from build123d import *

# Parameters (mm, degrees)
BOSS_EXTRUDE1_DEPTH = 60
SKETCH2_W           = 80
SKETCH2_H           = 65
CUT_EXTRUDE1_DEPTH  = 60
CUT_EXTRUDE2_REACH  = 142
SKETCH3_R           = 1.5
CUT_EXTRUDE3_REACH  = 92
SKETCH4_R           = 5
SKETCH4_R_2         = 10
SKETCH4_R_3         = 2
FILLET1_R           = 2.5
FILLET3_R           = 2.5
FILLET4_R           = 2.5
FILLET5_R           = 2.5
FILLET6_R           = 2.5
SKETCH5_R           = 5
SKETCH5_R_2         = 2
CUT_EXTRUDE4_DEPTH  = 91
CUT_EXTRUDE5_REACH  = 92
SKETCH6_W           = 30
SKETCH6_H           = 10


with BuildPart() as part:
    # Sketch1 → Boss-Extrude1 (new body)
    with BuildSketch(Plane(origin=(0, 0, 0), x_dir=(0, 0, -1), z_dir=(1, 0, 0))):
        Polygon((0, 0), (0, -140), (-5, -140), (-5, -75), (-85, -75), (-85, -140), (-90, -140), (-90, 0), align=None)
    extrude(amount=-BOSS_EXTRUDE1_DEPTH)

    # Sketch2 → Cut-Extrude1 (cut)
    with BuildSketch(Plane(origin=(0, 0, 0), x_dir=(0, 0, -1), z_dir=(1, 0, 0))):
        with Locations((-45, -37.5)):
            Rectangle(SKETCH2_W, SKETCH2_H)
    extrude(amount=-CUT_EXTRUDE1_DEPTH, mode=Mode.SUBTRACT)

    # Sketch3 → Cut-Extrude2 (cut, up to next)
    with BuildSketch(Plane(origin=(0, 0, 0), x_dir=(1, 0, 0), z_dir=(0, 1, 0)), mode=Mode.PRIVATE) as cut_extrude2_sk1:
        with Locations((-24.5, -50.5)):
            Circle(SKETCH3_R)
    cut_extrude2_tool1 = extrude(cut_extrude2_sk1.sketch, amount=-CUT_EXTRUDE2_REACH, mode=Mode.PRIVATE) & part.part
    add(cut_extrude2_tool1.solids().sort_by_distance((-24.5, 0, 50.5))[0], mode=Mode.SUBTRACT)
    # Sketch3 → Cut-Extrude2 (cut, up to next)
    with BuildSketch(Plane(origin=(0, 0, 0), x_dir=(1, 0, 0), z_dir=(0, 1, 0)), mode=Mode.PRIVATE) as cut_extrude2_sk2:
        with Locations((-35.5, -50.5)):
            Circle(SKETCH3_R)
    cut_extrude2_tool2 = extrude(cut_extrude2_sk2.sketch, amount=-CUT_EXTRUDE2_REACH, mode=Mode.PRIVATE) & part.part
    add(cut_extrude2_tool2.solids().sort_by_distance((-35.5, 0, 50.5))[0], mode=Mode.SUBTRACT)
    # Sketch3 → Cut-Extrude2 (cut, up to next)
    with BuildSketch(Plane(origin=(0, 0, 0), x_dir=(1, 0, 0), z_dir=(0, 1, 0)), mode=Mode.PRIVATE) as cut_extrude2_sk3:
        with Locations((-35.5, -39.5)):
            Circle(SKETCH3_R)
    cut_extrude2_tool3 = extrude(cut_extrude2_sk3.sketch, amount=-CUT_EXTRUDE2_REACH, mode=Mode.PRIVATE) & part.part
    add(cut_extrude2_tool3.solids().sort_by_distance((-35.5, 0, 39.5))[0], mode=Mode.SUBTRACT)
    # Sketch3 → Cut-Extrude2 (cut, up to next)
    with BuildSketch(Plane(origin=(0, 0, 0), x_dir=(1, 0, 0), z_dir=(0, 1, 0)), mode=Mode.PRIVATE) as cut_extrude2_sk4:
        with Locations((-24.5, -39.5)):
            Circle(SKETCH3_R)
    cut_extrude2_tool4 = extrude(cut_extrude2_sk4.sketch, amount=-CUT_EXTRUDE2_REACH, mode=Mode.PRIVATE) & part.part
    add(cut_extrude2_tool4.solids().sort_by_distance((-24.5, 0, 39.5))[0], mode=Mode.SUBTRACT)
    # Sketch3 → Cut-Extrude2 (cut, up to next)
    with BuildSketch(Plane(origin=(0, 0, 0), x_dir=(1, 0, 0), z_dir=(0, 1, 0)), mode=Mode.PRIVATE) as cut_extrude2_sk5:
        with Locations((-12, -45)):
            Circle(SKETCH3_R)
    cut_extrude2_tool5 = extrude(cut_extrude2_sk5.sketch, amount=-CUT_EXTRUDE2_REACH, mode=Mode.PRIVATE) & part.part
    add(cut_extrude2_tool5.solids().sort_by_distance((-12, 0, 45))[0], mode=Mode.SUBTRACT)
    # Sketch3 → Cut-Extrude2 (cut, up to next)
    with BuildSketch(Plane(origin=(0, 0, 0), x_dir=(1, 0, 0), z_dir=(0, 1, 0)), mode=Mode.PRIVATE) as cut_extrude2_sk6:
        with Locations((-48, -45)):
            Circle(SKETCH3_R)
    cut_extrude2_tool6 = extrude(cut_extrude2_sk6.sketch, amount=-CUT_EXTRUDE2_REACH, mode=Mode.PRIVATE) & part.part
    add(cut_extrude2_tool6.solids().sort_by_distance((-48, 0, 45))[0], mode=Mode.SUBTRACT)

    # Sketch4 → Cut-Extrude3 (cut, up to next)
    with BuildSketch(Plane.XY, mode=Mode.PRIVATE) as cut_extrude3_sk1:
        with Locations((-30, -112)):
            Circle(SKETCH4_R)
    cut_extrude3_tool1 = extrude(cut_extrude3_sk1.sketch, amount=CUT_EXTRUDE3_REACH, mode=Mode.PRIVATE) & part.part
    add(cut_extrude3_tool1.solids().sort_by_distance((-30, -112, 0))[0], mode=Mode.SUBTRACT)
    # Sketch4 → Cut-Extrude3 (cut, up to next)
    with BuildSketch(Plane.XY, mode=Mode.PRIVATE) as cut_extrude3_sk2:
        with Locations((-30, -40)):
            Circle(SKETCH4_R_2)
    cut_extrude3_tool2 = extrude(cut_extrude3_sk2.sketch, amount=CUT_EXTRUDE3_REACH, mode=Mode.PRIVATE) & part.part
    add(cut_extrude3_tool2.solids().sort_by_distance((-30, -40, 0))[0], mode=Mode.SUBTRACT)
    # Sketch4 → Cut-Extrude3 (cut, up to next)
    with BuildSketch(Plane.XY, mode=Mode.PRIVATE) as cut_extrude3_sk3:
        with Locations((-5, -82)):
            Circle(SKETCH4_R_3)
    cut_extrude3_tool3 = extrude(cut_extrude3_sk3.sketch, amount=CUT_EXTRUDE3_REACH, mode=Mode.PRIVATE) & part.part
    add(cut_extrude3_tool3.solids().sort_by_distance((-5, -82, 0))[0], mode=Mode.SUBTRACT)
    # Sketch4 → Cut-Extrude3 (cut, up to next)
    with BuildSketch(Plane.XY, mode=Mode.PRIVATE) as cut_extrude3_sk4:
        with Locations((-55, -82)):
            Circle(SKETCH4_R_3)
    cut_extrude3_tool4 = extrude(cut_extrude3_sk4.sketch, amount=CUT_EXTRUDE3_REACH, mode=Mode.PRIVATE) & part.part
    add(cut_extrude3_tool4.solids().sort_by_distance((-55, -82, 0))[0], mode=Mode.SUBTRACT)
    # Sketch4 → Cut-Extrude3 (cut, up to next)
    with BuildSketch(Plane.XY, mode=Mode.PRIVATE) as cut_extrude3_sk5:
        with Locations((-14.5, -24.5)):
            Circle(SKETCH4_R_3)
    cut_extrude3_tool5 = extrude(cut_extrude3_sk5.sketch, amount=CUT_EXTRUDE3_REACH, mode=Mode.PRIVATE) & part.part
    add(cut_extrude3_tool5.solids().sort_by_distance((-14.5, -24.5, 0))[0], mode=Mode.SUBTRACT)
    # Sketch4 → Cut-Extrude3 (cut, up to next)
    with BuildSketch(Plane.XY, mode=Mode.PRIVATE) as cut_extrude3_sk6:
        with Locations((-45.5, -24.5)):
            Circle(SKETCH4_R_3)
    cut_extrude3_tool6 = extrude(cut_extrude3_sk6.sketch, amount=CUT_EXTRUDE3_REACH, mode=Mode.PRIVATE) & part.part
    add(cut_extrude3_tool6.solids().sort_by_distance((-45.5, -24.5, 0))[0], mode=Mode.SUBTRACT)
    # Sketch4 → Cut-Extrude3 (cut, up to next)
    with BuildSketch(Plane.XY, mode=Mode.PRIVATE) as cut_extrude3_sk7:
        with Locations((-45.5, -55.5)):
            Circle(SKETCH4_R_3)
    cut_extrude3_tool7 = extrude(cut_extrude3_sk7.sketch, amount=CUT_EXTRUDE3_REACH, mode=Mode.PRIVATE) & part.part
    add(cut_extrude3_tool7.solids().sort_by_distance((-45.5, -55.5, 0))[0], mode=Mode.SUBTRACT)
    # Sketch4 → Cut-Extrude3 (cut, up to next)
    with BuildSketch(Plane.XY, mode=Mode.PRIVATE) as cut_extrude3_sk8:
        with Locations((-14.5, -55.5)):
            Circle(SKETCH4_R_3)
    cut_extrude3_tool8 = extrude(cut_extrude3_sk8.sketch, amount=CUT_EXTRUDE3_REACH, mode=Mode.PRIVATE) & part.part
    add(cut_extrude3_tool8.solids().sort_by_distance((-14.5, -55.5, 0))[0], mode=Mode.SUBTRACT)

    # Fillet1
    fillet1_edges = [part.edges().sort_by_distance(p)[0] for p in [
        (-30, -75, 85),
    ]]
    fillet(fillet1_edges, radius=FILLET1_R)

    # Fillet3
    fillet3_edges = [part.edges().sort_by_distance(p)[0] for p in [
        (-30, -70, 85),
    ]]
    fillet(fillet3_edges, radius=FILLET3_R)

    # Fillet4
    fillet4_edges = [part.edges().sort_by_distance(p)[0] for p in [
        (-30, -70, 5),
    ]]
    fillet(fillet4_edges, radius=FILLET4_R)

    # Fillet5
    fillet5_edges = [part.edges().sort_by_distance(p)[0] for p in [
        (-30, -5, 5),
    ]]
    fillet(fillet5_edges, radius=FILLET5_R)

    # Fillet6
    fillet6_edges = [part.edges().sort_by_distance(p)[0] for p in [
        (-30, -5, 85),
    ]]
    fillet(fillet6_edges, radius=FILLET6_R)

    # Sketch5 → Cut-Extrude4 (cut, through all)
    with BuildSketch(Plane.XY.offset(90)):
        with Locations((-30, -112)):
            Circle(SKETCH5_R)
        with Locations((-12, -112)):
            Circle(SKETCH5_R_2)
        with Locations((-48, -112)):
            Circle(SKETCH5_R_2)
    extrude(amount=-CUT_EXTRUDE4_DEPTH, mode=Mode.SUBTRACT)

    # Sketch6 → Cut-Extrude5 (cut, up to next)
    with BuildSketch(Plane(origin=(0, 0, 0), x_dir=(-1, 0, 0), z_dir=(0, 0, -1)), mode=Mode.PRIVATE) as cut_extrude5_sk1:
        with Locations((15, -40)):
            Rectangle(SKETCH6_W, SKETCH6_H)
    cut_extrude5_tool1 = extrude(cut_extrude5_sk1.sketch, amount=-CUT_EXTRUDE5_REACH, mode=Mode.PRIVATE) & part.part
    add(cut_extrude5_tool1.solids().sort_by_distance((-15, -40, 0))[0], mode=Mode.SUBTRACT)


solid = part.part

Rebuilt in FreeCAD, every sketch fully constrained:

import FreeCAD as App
import Part
import Sketcher
Q = App.Units.Quantity


def edges_at(feature, points):
    """Names of the edges that pass closest to the given points."""
    edges = feature.Shape.Edges
    near = lambda p: min(range(len(edges)), key=lambda i: edges[i].distToShape(Part.Vertex(*p))[0])
    return sorted({f"Edge{near(p) + 1}" for p in points})


def add_polygon(sketch, points):
    """Adds a closed chain of lines whose ends are joined by coincident constraints."""
    first, n = sketch.GeometryCount, len(points)
    for a, b in zip(points, points[1:] + points[:1]):
        sketch.addGeometry(Part.LineSegment(App.Vector(*a, 0), App.Vector(*b, 0)), False)
    for i in range(n):
        sketch.addConstraint(Sketcher.Constraint("Coincident", first + i, 2, first + (i + 1) % n, 1))

doc = App.newDocument("Part")
body = doc.addObject("PartDesign::Body", "Body")

# Sketch on YZ plane
sketch1 = body.newObject("Sketcher::SketchObject", "Sketch")
sketch1.AttachmentSupport = (doc.getObject("YZ_Plane"), [""])
sketch1.MapMode = "FlatFace"
add_polygon(sketch1, [(-140, 0), (0, 0), (0, 90), (-140, 90), (-140, 85), (-75, 85), (-75, 5), (-140, 5)])  # lines 0-7
sketch1.addConstraint(Sketcher.Constraint("Horizontal", 0))
sketch1.addConstraint(Sketcher.Constraint("Vertical", 1))
sketch1.addConstraint(Sketcher.Constraint("Horizontal", 2))
sketch1.addConstraint(Sketcher.Constraint("Vertical", 3))
sketch1.addConstraint(Sketcher.Constraint("Horizontal", 4))
sketch1.addConstraint(Sketcher.Constraint("Vertical", 5))
sketch1.addConstraint(Sketcher.Constraint("Horizontal", 6))
sketch1.addConstraint(Sketcher.Constraint("Vertical", 7))
sketch1.addConstraint(Sketcher.Constraint("Coincident", 0, 2, -1, 1))
sketch1.addConstraint(Sketcher.Constraint("Vertical", 3, 2, 6, 2))
sketch1.addConstraint(Sketcher.Constraint("Equal", 3, 7))
sketch1.addConstraint(Sketcher.Constraint("DistanceX", 0, 1, 0, 2, Q("140 mm")))
sketch1.addConstraint(Sketcher.Constraint("DistanceX", 4, 1, 4, 2, Q("65 mm")))
sketch1.addConstraint(Sketcher.Constraint("DistanceY", 1, 1, 1, 2, Q("90 mm")))
sketch1.addConstraint(Sketcher.Constraint("DistanceY", 3, 2, 3, 1, Q("5 mm")))
pad1 = body.newObject("PartDesign::Pad", "Pad")
pad1.Profile = sketch1
pad1.Length = 60
pad1.Reversed = True

# Sketch on YZ plane
sketch2 = body.newObject("Sketcher::SketchObject", "Sketch001")
sketch2.AttachmentSupport = (doc.getObject("YZ_Plane"), [""])
sketch2.MapMode = "FlatFace"
add_polygon(sketch2, [(-5, 85), (-70, 85), (-70, 5), (-5, 5)])  # lines 0-3
sketch2.addConstraint(Sketcher.Constraint("Horizontal", 0))
sketch2.addConstraint(Sketcher.Constraint("Vertical", 1))
sketch2.addConstraint(Sketcher.Constraint("Horizontal", 2))
sketch2.addConstraint(Sketcher.Constraint("Vertical", 3))
sketch2.addConstraint(Sketcher.Constraint("DistanceX", 0, 2, 0, 1, Q("65 mm")))
sketch2.addConstraint(Sketcher.Constraint("DistanceY", 1, 2, 1, 1, Q("80 mm")))
sketch2.addConstraint(Sketcher.Constraint("DistanceX", 0, 2, -1, 1, Q("70 mm")))
sketch2.addConstraint(Sketcher.Constraint("DistanceY", -1, 1, 0, 2, Q("85 mm")))
pocket1 = body.newObject("PartDesign::Pocket", "Pocket")
pocket1.Profile = sketch2
pocket1.Length = 60

# Sketch on XZ plane
sketch3 = body.newObject("Sketcher::SketchObject", "Sketch002")
sketch3.AttachmentSupport = (doc.getObject("XZ_Plane"), [""])
sketch3.MapMode = "FlatFace"
sketch3.addGeometry(Part.Circle(App.Vector(-24.5, 50.5, 0), App.Vector(0, 0, 1), 1.5), False)
sketch3.addConstraint(Sketcher.Constraint("Diameter", 0, Q("3 mm")))
sketch3.addConstraint(Sketcher.Constraint("DistanceX", 0, 3, -1, 1, Q("24.5 mm")))
sketch3.addConstraint(Sketcher.Constraint("DistanceY", -1, 1, 0, 3, Q("50.5 mm")))
pocket2 = body.newObject("PartDesign::Pocket", "Pocket001")
pocket2.Profile = sketch3
pocket2.Type = "UpToFirst"
pocket2.Reversed = True

# Sketch on XZ plane
sketch4 = body.newObject("Sketcher::SketchObject", "Sketch003")
sketch4.AttachmentSupport = (doc.getObject("XZ_Plane"), [""])
sketch4.MapMode = "FlatFace"
sketch4.addGeometry(Part.Circle(App.Vector(-35.5, 50.5, 0), App.Vector(0, 0, 1), 1.5), False)
sketch4.addConstraint(Sketcher.Constraint("Diameter", 0, Q("3 mm")))
sketch4.addConstraint(Sketcher.Constraint("DistanceX", 0, 3, -1, 1, Q("35.5 mm")))
sketch4.addConstraint(Sketcher.Constraint("DistanceY", -1, 1, 0, 3, Q("50.5 mm")))
pocket3 = body.newObject("PartDesign::Pocket", "Pocket002")
pocket3.Profile = sketch4
pocket3.Type = "UpToFirst"
pocket3.Reversed = True

# Sketch on XZ plane
sketch5 = body.newObject("Sketcher::SketchObject", "Sketch004")
sketch5.AttachmentSupport = (doc.getObject("XZ_Plane"), [""])
sketch5.MapMode = "FlatFace"
sketch5.addGeometry(Part.Circle(App.Vector(-35.5, 39.5, 0), App.Vector(0, 0, 1), 1.5), False)
sketch5.addConstraint(Sketcher.Constraint("Diameter", 0, Q("3 mm")))
sketch5.addConstraint(Sketcher.Constraint("DistanceX", 0, 3, -1, 1, Q("35.5 mm")))
sketch5.addConstraint(Sketcher.Constraint("DistanceY", -1, 1, 0, 3, Q("39.5 mm")))
pocket4 = body.newObject("PartDesign::Pocket", "Pocket003")
pocket4.Profile = sketch5
pocket4.Type = "UpToFirst"
pocket4.Reversed = True

# Sketch on XZ plane
sketch6 = body.newObject("Sketcher::SketchObject", "Sketch005")
sketch6.AttachmentSupport = (doc.getObject("XZ_Plane"), [""])
sketch6.MapMode = "FlatFace"
sketch6.addGeometry(Part.Circle(App.Vector(-24.5, 39.5, 0), App.Vector(0, 0, 1), 1.5), False)
sketch6.addConstraint(Sketcher.Constraint("Diameter", 0, Q("3 mm")))
sketch6.addConstraint(Sketcher.Constraint("DistanceX", 0, 3, -1, 1, Q("24.5 mm")))
sketch6.addConstraint(Sketcher.Constraint("DistanceY", -1, 1, 0, 3, Q("39.5 mm")))
pocket5 = body.newObject("PartDesign::Pocket", "Pocket004")
pocket5.Profile = sketch6
pocket5.Type = "UpToFirst"
pocket5.Reversed = True

# Sketch on XZ plane
sketch7 = body.newObject("Sketcher::SketchObject", "Sketch006")
sketch7.AttachmentSupport = (doc.getObject("XZ_Plane"), [""])
sketch7.MapMode = "FlatFace"
sketch7.addGeometry(Part.Circle(App.Vector(-12, 45, 0), App.Vector(0, 0, 1), 1.5), False)
sketch7.addConstraint(Sketcher.Constraint("Diameter", 0, Q("3 mm")))
sketch7.addConstraint(Sketcher.Constraint("DistanceX", 0, 3, -1, 1, Q("12 mm")))
sketch7.addConstraint(Sketcher.Constraint("DistanceY", -1, 1, 0, 3, Q("45 mm")))
pocket6 = body.newObject("PartDesign::Pocket", "Pocket005")
pocket6.Profile = sketch7
pocket6.Type = "UpToFirst"
pocket6.Reversed = True

# Sketch on XZ plane
sketch8 = body.newObject("Sketcher::SketchObject", "Sketch007")
sketch8.AttachmentSupport = (doc.getObject("XZ_Plane"), [""])
sketch8.MapMode = "FlatFace"
sketch8.addGeometry(Part.Circle(App.Vector(-48, 45, 0), App.Vector(0, 0, 1), 1.5), False)
sketch8.addConstraint(Sketcher.Constraint("Diameter", 0, Q("3 mm")))
sketch8.addConstraint(Sketcher.Constraint("DistanceX", 0, 3, -1, 1, Q("48 mm")))
sketch8.addConstraint(Sketcher.Constraint("DistanceY", -1, 1, 0, 3, Q("45 mm")))
pocket7 = body.newObject("PartDesign::Pocket", "Pocket006")
pocket7.Profile = sketch8
pocket7.Type = "UpToFirst"
pocket7.Reversed = True

# Sketch on XY plane
sketch9 = body.newObject("Sketcher::SketchObject", "Sketch008")
sketch9.AttachmentSupport = (doc.getObject("XY_Plane"), [""])
sketch9.MapMode = "FlatFace"
sketch9.addGeometry(Part.Circle(App.Vector(-30, -112, 0), App.Vector(0, 0, 1), 5), False)
sketch9.addConstraint(Sketcher.Constraint("Diameter", 0, Q("10 mm")))
sketch9.addConstraint(Sketcher.Constraint("DistanceX", 0, 3, -1, 1, Q("30 mm")))
sketch9.addConstraint(Sketcher.Constraint("DistanceY", 0, 3, -1, 1, Q("112 mm")))
pocket8 = body.newObject("PartDesign::Pocket", "Pocket007")
pocket8.Profile = sketch9
pocket8.Type = "UpToFirst"
pocket8.Reversed = True

# Sketch on XY plane
sketch10 = body.newObject("Sketcher::SketchObject", "Sketch009")
sketch10.AttachmentSupport = (doc.getObject("XY_Plane"), [""])
sketch10.MapMode = "FlatFace"
sketch10.addGeometry(Part.Circle(App.Vector(-30, -40, 0), App.Vector(0, 0, 1), 10), False)
sketch10.addConstraint(Sketcher.Constraint("Diameter", 0, Q("20 mm")))
sketch10.addConstraint(Sketcher.Constraint("DistanceX", 0, 3, -1, 1, Q("30 mm")))
sketch10.addConstraint(Sketcher.Constraint("DistanceY", 0, 3, -1, 1, Q("40 mm")))
pocket9 = body.newObject("PartDesign::Pocket", "Pocket008")
pocket9.Profile = sketch10
pocket9.Type = "UpToFirst"
pocket9.Reversed = True

# Sketch on XY plane
sketch11 = body.newObject("Sketcher::SketchObject", "Sketch010")
sketch11.AttachmentSupport = (doc.getObject("XY_Plane"), [""])
sketch11.MapMode = "FlatFace"
sketch11.addGeometry(Part.Circle(App.Vector(-5, -82, 0), App.Vector(0, 0, 1), 2), False)
sketch11.addConstraint(Sketcher.Constraint("Diameter", 0, Q("4 mm")))
sketch11.addConstraint(Sketcher.Constraint("DistanceX", 0, 3, -1, 1, Q("5 mm")))
sketch11.addConstraint(Sketcher.Constraint("DistanceY", 0, 3, -1, 1, Q("82 mm")))
pocket10 = body.newObject("PartDesign::Pocket", "Pocket009")
pocket10.Profile = sketch11
pocket10.Type = "UpToFirst"
pocket10.Reversed = True

# Sketch on XY plane
sketch12 = body.newObject("Sketcher::SketchObject", "Sketch011")
sketch12.AttachmentSupport = (doc.getObject("XY_Plane"), [""])
sketch12.MapMode = "FlatFace"
sketch12.addGeometry(Part.Circle(App.Vector(-55, -82, 0), App.Vector(0, 0, 1), 2), False)
sketch12.addConstraint(Sketcher.Constraint("Diameter", 0, Q("4 mm")))
sketch12.addConstraint(Sketcher.Constraint("DistanceX", 0, 3, -1, 1, Q("55 mm")))
sketch12.addConstraint(Sketcher.Constraint("DistanceY", 0, 3, -1, 1, Q("82 mm")))
pocket11 = body.newObject("PartDesign::Pocket", "Pocket010")
pocket11.Profile = sketch12
pocket11.Type = "UpToFirst"
pocket11.Reversed = True

# Sketch on XY plane
sketch13 = body.newObject("Sketcher::SketchObject", "Sketch012")
sketch13.AttachmentSupport = (doc.getObject("XY_Plane"), [""])
sketch13.MapMode = "FlatFace"
sketch13.addGeometry(Part.Circle(App.Vector(-14.5, -24.5, 0), App.Vector(0, 0, 1), 2), False)
sketch13.addConstraint(Sketcher.Constraint("Diameter", 0, Q("4 mm")))
sketch13.addConstraint(Sketcher.Constraint("DistanceX", 0, 3, -1, 1, Q("14.5 mm")))
sketch13.addConstraint(Sketcher.Constraint("DistanceY", 0, 3, -1, 1, Q("24.5 mm")))
pocket12 = body.newObject("PartDesign::Pocket", "Pocket011")
pocket12.Profile = sketch13
pocket12.Type = "UpToFirst"
pocket12.Reversed = True

# Sketch on XY plane
sketch14 = body.newObject("Sketcher::SketchObject", "Sketch013")
sketch14.AttachmentSupport = (doc.getObject("XY_Plane"), [""])
sketch14.MapMode = "FlatFace"
sketch14.addGeometry(Part.Circle(App.Vector(-45.5, -24.5, 0), App.Vector(0, 0, 1), 2), False)
sketch14.addConstraint(Sketcher.Constraint("Diameter", 0, Q("4 mm")))
sketch14.addConstraint(Sketcher.Constraint("DistanceX", 0, 3, -1, 1, Q("45.5 mm")))
sketch14.addConstraint(Sketcher.Constraint("DistanceY", 0, 3, -1, 1, Q("24.5 mm")))
pocket13 = body.newObject("PartDesign::Pocket", "Pocket012")
pocket13.Profile = sketch14
pocket13.Type = "UpToFirst"
pocket13.Reversed = True

# Sketch on XY plane
sketch15 = body.newObject("Sketcher::SketchObject", "Sketch014")
sketch15.AttachmentSupport = (doc.getObject("XY_Plane"), [""])
sketch15.MapMode = "FlatFace"
sketch15.addGeometry(Part.Circle(App.Vector(-45.5, -55.5, 0), App.Vector(0, 0, 1), 2), False)
sketch15.addConstraint(Sketcher.Constraint("Diameter", 0, Q("4 mm")))
sketch15.addConstraint(Sketcher.Constraint("DistanceX", 0, 3, -1, 1, Q("45.5 mm")))
sketch15.addConstraint(Sketcher.Constraint("DistanceY", 0, 3, -1, 1, Q("55.5 mm")))
pocket14 = body.newObject("PartDesign::Pocket", "Pocket013")
pocket14.Profile = sketch15
pocket14.Type = "UpToFirst"
pocket14.Reversed = True

# Sketch on XY plane
sketch16 = body.newObject("Sketcher::SketchObject", "Sketch015")
sketch16.AttachmentSupport = (doc.getObject("XY_Plane"), [""])
sketch16.MapMode = "FlatFace"
sketch16.addGeometry(Part.Circle(App.Vector(-14.5, -55.5, 0), App.Vector(0, 0, 1), 2), False)
sketch16.addConstraint(Sketcher.Constraint("Diameter", 0, Q("4 mm")))
sketch16.addConstraint(Sketcher.Constraint("DistanceX", 0, 3, -1, 1, Q("14.5 mm")))
sketch16.addConstraint(Sketcher.Constraint("DistanceY", 0, 3, -1, 1, Q("55.5 mm")))
pocket15 = body.newObject("PartDesign::Pocket", "Pocket014")
pocket15.Profile = sketch16
pocket15.Type = "UpToFirst"
pocket15.Reversed = True
doc.recompute()

fillet = body.newObject("PartDesign::Fillet", "Fillet")
fillet.Base = (pocket15, edges_at(pocket15, [(-30, -75, 85)]))
fillet.Radius = 2.5
doc.recompute()

fillet2 = body.newObject("PartDesign::Fillet", "Fillet001")
fillet2.Base = (fillet, edges_at(fillet, [(-30, -70, 85)]))
fillet2.Radius = 2.5
doc.recompute()

fillet3 = body.newObject("PartDesign::Fillet", "Fillet002")
fillet3.Base = (fillet2, edges_at(fillet2, [(-30, -70, 5)]))
fillet3.Radius = 2.5
doc.recompute()

fillet4 = body.newObject("PartDesign::Fillet", "Fillet003")
fillet4.Base = (fillet3, edges_at(fillet3, [(-30, -5, 5)]))
fillet4.Radius = 2.5
doc.recompute()

fillet5 = body.newObject("PartDesign::Fillet", "Fillet004")
fillet5.Base = (fillet4, edges_at(fillet4, [(-30, -5, 85)]))
fillet5.Radius = 2.5

# Sketch on XY plane
sketch17 = body.newObject("Sketcher::SketchObject", "Sketch016")
sketch17.AttachmentSupport = (doc.getObject("XY_Plane"), [""])
sketch17.MapMode = "FlatFace"
sketch17.AttachmentOffset = App.Placement(App.Vector(0, 0, 90), App.Rotation())
sketch17.addGeometry(Part.Circle(App.Vector(-30, -112, 0), App.Vector(0, 0, 1), 5), False)
sketch17.addGeometry(Part.Circle(App.Vector(-12, -112, 0), App.Vector(0, 0, 1), 2), False)
sketch17.addGeometry(Part.Circle(App.Vector(-48, -112, 0), App.Vector(0, 0, 1), 2), False)
sketch17.addConstraint(Sketcher.Constraint("Equal", 1, 2))
sketch17.addConstraint(Sketcher.Constraint("Horizontal", 0, 3, 1, 3))
sketch17.addConstraint(Sketcher.Constraint("Horizontal", 1, 3, 2, 3))
sketch17.addConstraint(Sketcher.Constraint("Diameter", 0, Q("10 mm")))
sketch17.addConstraint(Sketcher.Constraint("Diameter", 1, Q("4 mm")))
sketch17.addConstraint(Sketcher.Constraint("DistanceX", 0, 3, -1, 1, Q("30 mm")))
sketch17.addConstraint(Sketcher.Constraint("DistanceY", 0, 3, -1, 1, Q("112 mm")))
sketch17.addConstraint(Sketcher.Constraint("DistanceX", 1, 3, -1, 1, Q("12 mm")))
sketch17.addConstraint(Sketcher.Constraint("DistanceX", 2, 3, -1, 1, Q("48 mm")))
pocket16 = body.newObject("PartDesign::Pocket", "Pocket015")
pocket16.Profile = sketch17
pocket16.Type = "ThroughAll"

# Sketch on XY plane
sketch18 = body.newObject("Sketcher::SketchObject", "Sketch017")
sketch18.AttachmentSupport = (doc.getObject("XY_Plane"), [""])
sketch18.MapMode = "FlatFace"
add_polygon(sketch18, [(0, -35), (0, -45), (-30, -45), (-30, -35)])  # lines 0-3
sketch18.addConstraint(Sketcher.Constraint("Vertical", 0))
sketch18.addConstraint(Sketcher.Constraint("Horizontal", 1))
sketch18.addConstraint(Sketcher.Constraint("Vertical", 2))
sketch18.addConstraint(Sketcher.Constraint("Horizontal", 3))
sketch18.addConstraint(Sketcher.Constraint("PointOnObject", 0, 2, -2))
sketch18.addConstraint(Sketcher.Constraint("DistanceX", 1, 2, 1, 1, Q("30 mm")))
sketch18.addConstraint(Sketcher.Constraint("DistanceY", 0, 2, 0, 1, Q("10 mm")))
sketch18.addConstraint(Sketcher.Constraint("DistanceY", 0, 2, -1, 1, Q("45 mm")))
pocket17 = body.newObject("PartDesign::Pocket", "Pocket016")
pocket17.Profile = sketch18
pocket17.Type = "UpToFirst"
pocket17.Reversed = True

doc.recompute()
